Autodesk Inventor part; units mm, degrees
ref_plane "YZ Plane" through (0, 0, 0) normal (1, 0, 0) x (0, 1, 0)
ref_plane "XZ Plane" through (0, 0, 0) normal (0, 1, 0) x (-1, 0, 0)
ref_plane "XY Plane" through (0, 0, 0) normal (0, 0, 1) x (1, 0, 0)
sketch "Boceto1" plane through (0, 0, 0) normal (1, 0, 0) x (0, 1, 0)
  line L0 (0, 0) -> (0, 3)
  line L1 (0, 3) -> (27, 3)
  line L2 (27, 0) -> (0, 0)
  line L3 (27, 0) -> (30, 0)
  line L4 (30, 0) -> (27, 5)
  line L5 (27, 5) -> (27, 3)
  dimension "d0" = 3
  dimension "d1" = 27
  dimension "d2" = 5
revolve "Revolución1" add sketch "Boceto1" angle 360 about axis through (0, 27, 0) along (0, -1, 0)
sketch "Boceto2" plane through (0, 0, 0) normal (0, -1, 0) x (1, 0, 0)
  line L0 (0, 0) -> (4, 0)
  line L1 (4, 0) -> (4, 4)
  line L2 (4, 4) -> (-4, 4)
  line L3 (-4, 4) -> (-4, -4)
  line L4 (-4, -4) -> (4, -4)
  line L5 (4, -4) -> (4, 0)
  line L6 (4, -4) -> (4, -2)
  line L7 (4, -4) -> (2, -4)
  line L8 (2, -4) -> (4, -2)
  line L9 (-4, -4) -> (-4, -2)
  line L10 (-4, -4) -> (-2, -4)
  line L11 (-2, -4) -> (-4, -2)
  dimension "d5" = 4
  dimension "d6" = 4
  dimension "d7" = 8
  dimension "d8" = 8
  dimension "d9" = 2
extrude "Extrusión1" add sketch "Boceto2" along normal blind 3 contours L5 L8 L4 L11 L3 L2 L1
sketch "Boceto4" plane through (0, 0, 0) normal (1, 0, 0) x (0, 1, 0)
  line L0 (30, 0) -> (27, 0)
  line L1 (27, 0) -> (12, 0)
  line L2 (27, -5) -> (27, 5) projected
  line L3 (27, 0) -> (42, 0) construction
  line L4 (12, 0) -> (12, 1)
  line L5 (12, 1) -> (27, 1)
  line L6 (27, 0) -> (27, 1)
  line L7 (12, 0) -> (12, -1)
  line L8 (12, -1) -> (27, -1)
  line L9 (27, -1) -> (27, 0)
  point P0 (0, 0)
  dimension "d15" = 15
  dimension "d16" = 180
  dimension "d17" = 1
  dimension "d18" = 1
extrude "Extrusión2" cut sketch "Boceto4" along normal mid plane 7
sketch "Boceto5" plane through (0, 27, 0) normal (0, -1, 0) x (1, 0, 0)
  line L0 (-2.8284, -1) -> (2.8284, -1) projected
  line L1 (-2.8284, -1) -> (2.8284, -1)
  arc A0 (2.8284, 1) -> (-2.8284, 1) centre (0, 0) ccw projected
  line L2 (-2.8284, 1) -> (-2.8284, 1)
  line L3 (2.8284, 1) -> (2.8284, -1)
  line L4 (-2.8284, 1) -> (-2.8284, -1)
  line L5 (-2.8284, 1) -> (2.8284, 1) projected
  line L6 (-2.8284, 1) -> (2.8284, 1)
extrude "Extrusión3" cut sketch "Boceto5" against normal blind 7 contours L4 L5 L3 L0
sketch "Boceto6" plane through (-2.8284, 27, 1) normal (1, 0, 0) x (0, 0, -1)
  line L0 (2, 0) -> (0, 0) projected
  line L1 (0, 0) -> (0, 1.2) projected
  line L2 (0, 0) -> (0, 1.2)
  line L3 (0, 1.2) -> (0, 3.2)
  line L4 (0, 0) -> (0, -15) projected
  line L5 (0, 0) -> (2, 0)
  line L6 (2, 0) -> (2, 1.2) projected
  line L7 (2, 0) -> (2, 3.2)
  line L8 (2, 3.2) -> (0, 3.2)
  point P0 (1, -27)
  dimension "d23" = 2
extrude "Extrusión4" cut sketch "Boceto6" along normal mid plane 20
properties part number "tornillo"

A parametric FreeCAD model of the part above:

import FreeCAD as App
import Part
import Sketcher

V = App.Vector

doc = App.newDocument("Part")
body = doc.addObject("PartDesign::Body", "Body")

sketch1 = body.newObject("Sketcher::SketchObject", "Sketch")
sketch1.AttachmentSupport = (doc.getObject("YZ_Plane"), [""])
sketch1.MapMode = "FlatFace"
sketch1.addGeometry([
    Part.LineSegment(V(0, 3, 0), V(0, 0, 0)),
    Part.LineSegment(V(0, 0, 0), V(30, 0, 0)),
    Part.LineSegment(V(30, 0, 0), V(27, 5, 0)),
    Part.LineSegment(V(27, 5, 0), V(27, 3, 0)),
    Part.LineSegment(V(27, 3, 0), V(0, 3, 0)),
], False)
sketch1.addConstraint([
    Sketcher.Constraint("Coincident", 0, 2, 1, 1),
    Sketcher.Constraint("Coincident", 1, 2, 2, 1),
    Sketcher.Constraint("Coincident", 2, 2, 3, 1),
    Sketcher.Constraint("Coincident", 3, 2, 4, 1),
    Sketcher.Constraint("Coincident", 4, 2, 0, 1),
    Sketcher.Constraint("Vertical", 0),
    Sketcher.Constraint("Horizontal", 1),
    Sketcher.Constraint("Vertical", 3),
    Sketcher.Constraint("Horizontal", 4),
    Sketcher.Constraint("Coincident", 0, 2, -1, 1),
    Sketcher.Constraint("DistanceX", 4, 2, 4, 1, 27.0),
    Sketcher.Constraint("DistanceY", 0, 2, 0, 1, 3.0),
    Sketcher.Constraint("DistanceY", -1, 1, 2, 2, 5.0),
    Sketcher.Constraint("DistanceX", 2, 2, 1, 2, 3.0),
])
revolution = body.newObject("PartDesign::Revolution", "Revolution")
revolution.Profile = sketch1
revolution.ReferenceAxis = (sketch1, ["H_Axis"])
revolution.Angle = 360

sketch2 = body.newObject("Sketcher::SketchObject", "Sketch001")
sketch2.AttachmentSupport = (doc.getObject("XZ_Plane"), [""])
sketch2.MapMode = "FlatFace"
sketch2.addGeometry([
    Part.LineSegment(V(4, -2, 0), V(4, 4, 0)),
    Part.LineSegment(V(4, 4, 0), V(-4, 4, 0)),
    Part.LineSegment(V(-4, 4, 0), V(-4, -2, 0)),
    Part.LineSegment(V(-4, -2, 0), V(-2, -4, 0)),
    Part.LineSegment(V(-2, -4, 0), V(2, -4, 0)),
    Part.LineSegment(V(2, -4, 0), V(4, -2, 0)),
], False)
sketch2.addConstraint([
    Sketcher.Constraint("Coincident", 0, 2, 1, 1),
    Sketcher.Constraint("Coincident", 1, 2, 2, 1),
    Sketcher.Constraint("Coincident", 2, 2, 3, 1),
    Sketcher.Constraint("Coincident", 3, 2, 4, 1),
    Sketcher.Constraint("Coincident", 4, 2, 5, 1),
    Sketcher.Constraint("Coincident", 5, 2, 0, 1),
    Sketcher.Constraint("Vertical", 0),
    Sketcher.Constraint("Horizontal", 1),
    Sketcher.Constraint("Vertical", 2),
    Sketcher.Constraint("Horizontal", 4),
    Sketcher.Constraint("Symmetric", 2, 2, 5, 2, -2),
    Sketcher.Constraint("Perpendicular", 3, 5),
    Sketcher.Constraint("Equal", 3, 5),
    Sketcher.Constraint("DistanceX", 1, 2, 1, 1, 8.0),
    Sketcher.Constraint("DistanceX", 4, 1, 4, 2, 4.0),
    Sketcher.Constraint("DistanceY", -1, 1, 0, 2, 4.0),
    Sketcher.Constraint("DistanceY", 2, 2, -1, 1, 2.0),
])
pad1 = body.newObject("PartDesign::Pad", "Pad")
pad1.Profile = sketch2
pad1.Length = 3

sketch3 = body.newObject("Sketcher::SketchObject", "Sketch002")
sketch3.AttachmentSupport = (doc.getObject("YZ_Plane"), [""])
sketch3.MapMode = "FlatFace"
sketch3.addGeometry([
    Part.LineSegment(V(27, -1, 0), V(27, 1, 0)),
    Part.LineSegment(V(27, 1, 0), V(12, 1, 0)),
    Part.LineSegment(V(12, 1, 0), V(12, -1, 0)),
    Part.LineSegment(V(12, -1, 0), V(27, -1, 0)),
], False)
sketch3.addConstraint([
    Sketcher.Constraint("Coincident", 0, 2, 1, 1),
    Sketcher.Constraint("Coincident", 1, 2, 2, 1),
    Sketcher.Constraint("Coincident", 2, 2, 3, 1),
    Sketcher.Constraint("Coincident", 3, 2, 0, 1),
    Sketcher.Constraint("Vertical", 0),
    Sketcher.Constraint("Horizontal", 1),
    Sketcher.Constraint("Vertical", 2),
    Sketcher.Constraint("Horizontal", 3),
    Sketcher.Constraint("DistanceX", 1, 2, 1, 1, 15.0),
    Sketcher.Constraint("DistanceY", -1, 1, 0, 2, 1.0),
    Sketcher.Constraint("DistanceY", 2, 2, -1, 1, 1.0),
    Sketcher.Constraint("DistanceX", -1, 1, 0, 2, 27.0),
])
pocket1 = body.newObject("PartDesign::Pocket", "Pocket")
pocket1.Profile = sketch3
pocket1.Length = 7
pocket1.Midplane = True

sketch4 = body.newObject("Sketcher::SketchObject", "Sketch003")
sketch4.AttachmentSupport = (doc.getObject("XZ_Plane"), [""])
sketch4.MapMode = "FlatFace"
sketch4.AttachmentOffset = App.Placement(V(0, 0, -27), App.Rotation())
sketch4.addGeometry([
    Part.LineSegment(V(-2.8, 1, 0), V(-2.8, -1, 0)),
    Part.LineSegment(V(-2.8, -1, 0), V(2.8, -1, 0)),
    Part.LineSegment(V(2.8, -1, 0), V(2.8, 1, 0)),
    Part.LineSegment(V(2.8, 1, 0), V(-2.8, 1, 0)),
], False)
sketch4.addConstraint([
    Sketcher.Constraint("Coincident", 0, 2, 1, 1),
    Sketcher.Constraint("Coincident", 1, 2, 2, 1),
    Sketcher.Constraint("Coincident", 2, 2, 3, 1),
    Sketcher.Constraint("Coincident", 3, 2, 0, 1),
    Sketcher.Constraint("Vertical", 0),
    Sketcher.Constraint("Horizontal", 1),
    Sketcher.Constraint("Vertical", 2),
    Sketcher.Constraint("Horizontal", 3),
    Sketcher.Constraint("Symmetric", 0, 2, 2, 2, -1, 1),
    Sketcher.Constraint("DistanceY", 0, 2, 0, 1, 2.0),
    Sketcher.Constraint("DistanceX", 1, 1, 1, 2, 5.6568),
])
pocket2 = body.newObject("PartDesign::Pocket", "Pocket001")
pocket2.Profile = sketch4
pocket2.Length = 7

sketch5 = body.newObject("Sketcher::SketchObject", "Sketch004")
sketch5.AttachmentSupport = (doc.getObject("YZ_Plane"), [""])
sketch5.MapMode = "FlatFace"
sketch5.AttachmentOffset = App.Placement(V(0, 0, -2.8284), App.Rotation())
sketch5.addGeometry([
    Part.LineSegment(V(27, 1, 0), V(27, -1, 0)),
    Part.LineSegment(V(27, -1, 0), V(30.2, -1, 0)),
    Part.LineSegment(V(30.2, -1, 0), V(30.2, 1, 0)),
    Part.LineSegment(V(30.2, 1, 0), V(27, 1, 0)),
], False)
sketch5.addConstraint([
    Sketcher.Constraint("Coincident", 0, 2, 1, 1),
    Sketcher.Constraint("Coincident", 1, 2, 2, 1),
    Sketcher.Constraint("Coincident", 2, 2, 3, 1),
    Sketcher.Constraint("Coincident", 3, 2, 0, 1),
    Sketcher.Constraint("Vertical", 0),
    Sketcher.Constraint("Horizontal", 1),
    Sketcher.Constraint("Vertical", 2),
    Sketcher.Constraint("Horizontal", 3),
    Sketcher.Constraint("DistanceY", 0, 2, 0, 1, 2.0),
    Sketcher.Constraint("DistanceX", 1, 1, 1, 2, 3.2),
    Sketcher.Constraint("DistanceX", -1, 1, 0, 2, 27.0),
    Sketcher.Constraint("DistanceY", 0, 2, -1, 1, 1.0),
])
pocket3 = body.newObject("PartDesign::Pocket", "Pocket002")
pocket3.Profile = sketch5
pocket3.Length = 20
pocket3.Midplane = True

doc.recompute()
